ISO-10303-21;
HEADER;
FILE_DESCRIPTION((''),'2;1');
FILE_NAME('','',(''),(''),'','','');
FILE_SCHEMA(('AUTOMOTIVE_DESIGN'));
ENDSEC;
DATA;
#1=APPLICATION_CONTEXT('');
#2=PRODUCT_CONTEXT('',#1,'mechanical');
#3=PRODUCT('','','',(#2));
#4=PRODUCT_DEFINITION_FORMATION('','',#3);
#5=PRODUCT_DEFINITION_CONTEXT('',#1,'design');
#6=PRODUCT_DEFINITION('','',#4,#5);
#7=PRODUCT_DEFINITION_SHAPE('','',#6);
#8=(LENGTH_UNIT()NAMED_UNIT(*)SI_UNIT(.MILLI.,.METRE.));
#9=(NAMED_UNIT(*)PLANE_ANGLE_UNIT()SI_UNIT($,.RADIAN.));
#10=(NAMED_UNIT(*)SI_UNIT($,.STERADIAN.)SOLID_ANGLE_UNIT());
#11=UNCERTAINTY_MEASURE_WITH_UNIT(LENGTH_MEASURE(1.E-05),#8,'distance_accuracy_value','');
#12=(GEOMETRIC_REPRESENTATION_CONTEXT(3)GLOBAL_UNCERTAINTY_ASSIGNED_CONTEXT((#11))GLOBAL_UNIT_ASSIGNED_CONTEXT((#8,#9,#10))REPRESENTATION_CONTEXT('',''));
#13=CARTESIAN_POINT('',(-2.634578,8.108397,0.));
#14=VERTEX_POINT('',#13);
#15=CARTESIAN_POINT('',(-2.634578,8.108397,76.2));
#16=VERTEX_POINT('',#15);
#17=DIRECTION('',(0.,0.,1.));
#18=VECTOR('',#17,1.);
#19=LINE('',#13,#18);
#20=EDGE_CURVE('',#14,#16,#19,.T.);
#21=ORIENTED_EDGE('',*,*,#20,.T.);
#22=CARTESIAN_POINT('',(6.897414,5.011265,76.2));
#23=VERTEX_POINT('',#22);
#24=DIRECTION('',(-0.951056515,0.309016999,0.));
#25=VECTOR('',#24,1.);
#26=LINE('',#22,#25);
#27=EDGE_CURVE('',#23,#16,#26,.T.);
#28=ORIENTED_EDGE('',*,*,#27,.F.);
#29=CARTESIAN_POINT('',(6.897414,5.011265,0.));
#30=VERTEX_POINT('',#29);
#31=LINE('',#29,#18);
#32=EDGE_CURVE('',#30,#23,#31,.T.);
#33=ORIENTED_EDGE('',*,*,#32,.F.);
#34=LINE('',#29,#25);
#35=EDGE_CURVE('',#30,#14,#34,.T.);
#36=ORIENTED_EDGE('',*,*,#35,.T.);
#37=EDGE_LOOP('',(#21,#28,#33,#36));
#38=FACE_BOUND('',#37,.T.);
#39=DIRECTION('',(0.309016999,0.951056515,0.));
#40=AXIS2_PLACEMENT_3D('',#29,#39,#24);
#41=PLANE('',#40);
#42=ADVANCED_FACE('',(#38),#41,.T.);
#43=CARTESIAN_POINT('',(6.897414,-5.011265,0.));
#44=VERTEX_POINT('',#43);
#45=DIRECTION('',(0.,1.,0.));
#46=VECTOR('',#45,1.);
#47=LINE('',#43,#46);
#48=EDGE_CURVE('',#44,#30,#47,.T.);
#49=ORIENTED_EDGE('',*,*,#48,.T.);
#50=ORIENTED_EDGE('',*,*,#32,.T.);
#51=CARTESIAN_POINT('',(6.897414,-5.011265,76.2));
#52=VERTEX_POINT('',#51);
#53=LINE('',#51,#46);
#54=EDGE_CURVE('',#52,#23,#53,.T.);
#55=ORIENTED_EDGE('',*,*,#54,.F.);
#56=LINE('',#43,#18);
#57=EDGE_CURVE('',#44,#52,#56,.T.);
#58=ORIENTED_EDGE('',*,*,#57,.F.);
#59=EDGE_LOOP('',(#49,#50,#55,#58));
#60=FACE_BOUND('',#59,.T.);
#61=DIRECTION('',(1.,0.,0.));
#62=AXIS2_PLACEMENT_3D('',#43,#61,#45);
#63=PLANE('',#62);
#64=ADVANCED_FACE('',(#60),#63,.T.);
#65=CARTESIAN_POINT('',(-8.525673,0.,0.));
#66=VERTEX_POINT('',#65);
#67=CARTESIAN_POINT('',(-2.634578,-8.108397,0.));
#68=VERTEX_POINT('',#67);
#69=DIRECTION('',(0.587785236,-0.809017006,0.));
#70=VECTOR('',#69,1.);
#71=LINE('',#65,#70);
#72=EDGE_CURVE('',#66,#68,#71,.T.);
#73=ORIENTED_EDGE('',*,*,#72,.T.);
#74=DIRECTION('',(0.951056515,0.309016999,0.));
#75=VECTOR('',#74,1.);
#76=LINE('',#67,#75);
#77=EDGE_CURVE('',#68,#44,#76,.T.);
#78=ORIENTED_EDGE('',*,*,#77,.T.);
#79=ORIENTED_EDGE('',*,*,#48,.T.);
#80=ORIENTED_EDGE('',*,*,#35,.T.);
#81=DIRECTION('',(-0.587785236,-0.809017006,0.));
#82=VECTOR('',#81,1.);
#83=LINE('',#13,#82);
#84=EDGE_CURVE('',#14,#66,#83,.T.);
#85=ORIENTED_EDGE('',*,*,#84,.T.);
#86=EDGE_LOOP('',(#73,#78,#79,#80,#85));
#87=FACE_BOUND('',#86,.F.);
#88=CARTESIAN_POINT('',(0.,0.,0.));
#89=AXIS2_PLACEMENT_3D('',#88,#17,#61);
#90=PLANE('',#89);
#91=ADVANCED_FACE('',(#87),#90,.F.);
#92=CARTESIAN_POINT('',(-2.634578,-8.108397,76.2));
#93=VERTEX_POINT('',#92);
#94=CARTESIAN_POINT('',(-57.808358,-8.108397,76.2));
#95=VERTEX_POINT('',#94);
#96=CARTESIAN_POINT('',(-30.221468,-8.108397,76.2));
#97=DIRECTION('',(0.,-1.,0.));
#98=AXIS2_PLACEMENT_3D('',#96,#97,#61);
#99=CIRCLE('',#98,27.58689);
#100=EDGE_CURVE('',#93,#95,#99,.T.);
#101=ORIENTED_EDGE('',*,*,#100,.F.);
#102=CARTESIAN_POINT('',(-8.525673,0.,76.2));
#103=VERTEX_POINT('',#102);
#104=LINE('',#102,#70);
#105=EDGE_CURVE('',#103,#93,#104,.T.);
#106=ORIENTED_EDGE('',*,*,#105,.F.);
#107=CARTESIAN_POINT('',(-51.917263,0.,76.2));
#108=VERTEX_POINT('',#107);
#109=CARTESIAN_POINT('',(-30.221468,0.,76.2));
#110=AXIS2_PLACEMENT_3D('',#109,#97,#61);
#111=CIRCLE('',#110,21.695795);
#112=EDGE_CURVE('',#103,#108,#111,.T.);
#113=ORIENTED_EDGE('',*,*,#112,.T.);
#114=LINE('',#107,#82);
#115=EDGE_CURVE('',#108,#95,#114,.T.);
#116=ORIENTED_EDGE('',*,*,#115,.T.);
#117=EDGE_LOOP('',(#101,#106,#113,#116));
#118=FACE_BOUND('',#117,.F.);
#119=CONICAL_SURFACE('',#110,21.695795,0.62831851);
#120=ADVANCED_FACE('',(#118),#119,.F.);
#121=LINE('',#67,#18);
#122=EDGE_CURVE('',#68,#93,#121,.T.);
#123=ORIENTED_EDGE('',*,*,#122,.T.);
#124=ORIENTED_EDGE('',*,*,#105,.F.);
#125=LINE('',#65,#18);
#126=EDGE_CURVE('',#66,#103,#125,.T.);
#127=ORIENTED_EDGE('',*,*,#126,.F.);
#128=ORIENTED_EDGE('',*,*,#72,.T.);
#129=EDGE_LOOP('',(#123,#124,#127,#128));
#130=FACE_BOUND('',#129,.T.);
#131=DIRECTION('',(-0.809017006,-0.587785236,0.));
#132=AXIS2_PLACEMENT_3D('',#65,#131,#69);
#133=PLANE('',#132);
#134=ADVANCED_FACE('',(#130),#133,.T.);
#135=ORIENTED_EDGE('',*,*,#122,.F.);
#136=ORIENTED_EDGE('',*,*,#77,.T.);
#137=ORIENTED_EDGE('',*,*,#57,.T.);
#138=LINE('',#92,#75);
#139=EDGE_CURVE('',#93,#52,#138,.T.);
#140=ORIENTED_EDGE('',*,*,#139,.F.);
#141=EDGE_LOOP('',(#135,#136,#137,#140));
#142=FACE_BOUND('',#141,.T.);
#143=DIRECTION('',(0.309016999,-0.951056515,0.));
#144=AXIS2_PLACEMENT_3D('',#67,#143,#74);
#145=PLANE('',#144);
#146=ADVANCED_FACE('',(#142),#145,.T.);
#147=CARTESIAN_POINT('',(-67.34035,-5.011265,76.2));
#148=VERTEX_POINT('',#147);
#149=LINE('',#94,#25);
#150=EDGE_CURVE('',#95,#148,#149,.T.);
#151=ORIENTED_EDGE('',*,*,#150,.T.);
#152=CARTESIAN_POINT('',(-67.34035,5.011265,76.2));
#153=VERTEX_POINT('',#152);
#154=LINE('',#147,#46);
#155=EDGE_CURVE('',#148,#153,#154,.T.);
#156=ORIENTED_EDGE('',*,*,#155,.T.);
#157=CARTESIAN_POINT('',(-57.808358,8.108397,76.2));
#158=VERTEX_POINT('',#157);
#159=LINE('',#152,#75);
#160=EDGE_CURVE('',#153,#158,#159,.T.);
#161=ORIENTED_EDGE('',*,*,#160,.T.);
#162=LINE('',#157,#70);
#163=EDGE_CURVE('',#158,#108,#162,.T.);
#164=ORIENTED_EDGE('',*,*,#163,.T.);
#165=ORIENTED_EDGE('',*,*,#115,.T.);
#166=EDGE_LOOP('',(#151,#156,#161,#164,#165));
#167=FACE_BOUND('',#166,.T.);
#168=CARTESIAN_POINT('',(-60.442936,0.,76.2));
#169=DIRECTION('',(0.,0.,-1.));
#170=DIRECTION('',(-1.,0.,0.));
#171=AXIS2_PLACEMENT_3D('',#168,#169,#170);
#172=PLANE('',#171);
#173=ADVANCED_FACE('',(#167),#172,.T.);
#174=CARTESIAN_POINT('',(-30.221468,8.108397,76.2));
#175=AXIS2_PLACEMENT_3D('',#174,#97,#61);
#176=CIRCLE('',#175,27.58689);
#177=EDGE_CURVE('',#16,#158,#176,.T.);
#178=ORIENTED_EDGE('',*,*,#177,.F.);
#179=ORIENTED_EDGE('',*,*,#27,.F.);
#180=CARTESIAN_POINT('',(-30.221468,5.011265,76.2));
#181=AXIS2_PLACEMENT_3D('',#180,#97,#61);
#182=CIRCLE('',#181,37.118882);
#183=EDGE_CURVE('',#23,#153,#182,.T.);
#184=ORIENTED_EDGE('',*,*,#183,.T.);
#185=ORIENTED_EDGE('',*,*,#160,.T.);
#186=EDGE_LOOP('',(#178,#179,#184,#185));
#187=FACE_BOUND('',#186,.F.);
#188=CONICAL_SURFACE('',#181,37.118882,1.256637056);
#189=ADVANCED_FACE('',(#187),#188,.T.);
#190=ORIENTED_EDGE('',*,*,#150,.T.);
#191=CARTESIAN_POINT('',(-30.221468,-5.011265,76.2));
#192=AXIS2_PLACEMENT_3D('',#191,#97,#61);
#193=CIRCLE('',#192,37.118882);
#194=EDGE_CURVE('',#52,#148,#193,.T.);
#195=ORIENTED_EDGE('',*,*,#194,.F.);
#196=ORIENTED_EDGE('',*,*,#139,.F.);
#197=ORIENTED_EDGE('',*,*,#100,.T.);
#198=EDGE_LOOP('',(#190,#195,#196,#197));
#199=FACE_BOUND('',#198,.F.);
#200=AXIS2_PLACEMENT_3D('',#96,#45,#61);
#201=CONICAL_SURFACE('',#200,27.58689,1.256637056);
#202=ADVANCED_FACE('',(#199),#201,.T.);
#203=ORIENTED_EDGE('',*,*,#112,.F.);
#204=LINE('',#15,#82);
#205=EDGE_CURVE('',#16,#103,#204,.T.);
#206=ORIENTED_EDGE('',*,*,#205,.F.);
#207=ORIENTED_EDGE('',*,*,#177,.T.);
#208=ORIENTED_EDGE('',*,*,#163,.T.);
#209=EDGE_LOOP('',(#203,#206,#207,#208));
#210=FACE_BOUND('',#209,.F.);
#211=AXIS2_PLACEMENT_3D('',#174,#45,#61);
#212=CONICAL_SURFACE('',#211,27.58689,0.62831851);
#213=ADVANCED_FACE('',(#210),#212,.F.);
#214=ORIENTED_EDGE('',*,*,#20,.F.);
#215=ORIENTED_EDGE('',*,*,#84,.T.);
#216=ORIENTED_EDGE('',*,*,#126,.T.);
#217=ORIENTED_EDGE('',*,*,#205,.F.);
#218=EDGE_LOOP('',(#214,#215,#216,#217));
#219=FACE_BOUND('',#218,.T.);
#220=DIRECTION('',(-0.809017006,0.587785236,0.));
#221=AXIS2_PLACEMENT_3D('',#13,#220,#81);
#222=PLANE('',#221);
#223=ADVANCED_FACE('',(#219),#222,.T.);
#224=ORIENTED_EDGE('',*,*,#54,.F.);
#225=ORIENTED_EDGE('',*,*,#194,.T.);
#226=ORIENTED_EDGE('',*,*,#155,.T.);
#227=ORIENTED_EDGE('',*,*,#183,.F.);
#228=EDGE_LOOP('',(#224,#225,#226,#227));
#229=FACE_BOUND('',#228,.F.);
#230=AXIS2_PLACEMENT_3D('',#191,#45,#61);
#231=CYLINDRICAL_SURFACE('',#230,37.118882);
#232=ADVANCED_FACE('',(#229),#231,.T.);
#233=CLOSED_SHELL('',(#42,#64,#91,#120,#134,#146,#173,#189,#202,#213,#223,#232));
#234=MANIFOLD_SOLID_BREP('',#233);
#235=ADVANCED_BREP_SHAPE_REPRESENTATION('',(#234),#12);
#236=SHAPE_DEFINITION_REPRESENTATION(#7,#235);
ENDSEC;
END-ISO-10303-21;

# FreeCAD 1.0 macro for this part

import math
import FreeCAD as App
import Part
import Sketcher

V = App.Vector
Q = App.Units.Quantity

doc = App.newDocument("Part")
body = doc.addObject("PartDesign::Body", "Body")

# Sketch on XY plane
sketch1 = body.newObject("Sketcher::SketchObject", "Sketch")
sketch1.AttachmentSupport = (doc.getObject("XY_Plane"), [""])
sketch1.MapMode = "FlatFace"
sketch1.addGeometry([
    Part.LineSegment(V(7, -5, 0), V(7, 5, 0)),  # 0
    Part.LineSegment(V(7, 5, 0), V(-3, 8, 0)),  # 1
    Part.LineSegment(V(-3, 8, 0), V(-9, 0, 0)),  # 2
    Part.LineSegment(V(-9, 0, 0), V(-3, -8, 0)),  # 3
    Part.LineSegment(V(-3, -8, 0), V(7, -5, 0)),  # 4
], False)
sketch1.addConstraint([
    Sketcher.Constraint("Coincident", 0, 2, 1, 1),
    Sketcher.Constraint("Coincident", 1, 2, 2, 1),
    Sketcher.Constraint("Coincident", 2, 2, 3, 1),
    Sketcher.Constraint("Coincident", 3, 2, 4, 1),
    Sketcher.Constraint("Coincident", 4, 2, 0, 1),
    Sketcher.Constraint("Vertical", 0),
    Sketcher.Constraint("Symmetric", 1, 2, 3, 2, -1),
    Sketcher.Constraint("PointOnObject", 2, 2, -1),
    Sketcher.Constraint("Equal", 1, 2),
    Sketcher.Constraint("Equal", 3, 4),
    Sketcher.Constraint("Angle", 1, Q("162 deg")),
    Sketcher.Constraint("Angle", 2, Q("-125.999999 deg")),
    Sketcher.Constraint("DistanceY", 0, 1, 0, 2, 10.02253),
    Sketcher.Constraint("DistanceX", -1, 1, 0, 2, 6.897414),
])

# Sketch on XZ plane
sketch2 = body.newObject("Sketcher::SketchObject", "Sketch001")
sketch2.AttachmentSupport = (doc.getObject("XZ_Plane"), [""])
sketch2.MapMode = "FlatFace"
sketch2.addGeometry([
    Part.LineSegment(V(0, 0, 0), V(0, 76, 0)),
    Part.ArcOfCircle(Part.Circle(V(-30, 76, 0), V(0, 0, 1), 30), math.radians(0), math.radians(180)),
], False)
sketch2.addConstraint([
    Sketcher.Constraint("Tangent", 0, 2, 1, 1),
    Sketcher.Constraint("Vertical", 0),
    Sketcher.Constraint("Coincident", 0, 1, -1, 1),
    Sketcher.Constraint("Horizontal", 0, 2, 1, 2),
    Sketcher.Constraint("DistanceY", 0, 1, 0, 2, Q("3 in")),
    Sketcher.Constraint("Radius", 1, 30.221468),
])
doc.recompute()

additivepipe = body.newObject("PartDesign::AdditivePipe", "AdditivePipe")
additivepipe.Profile = sketch1
additivepipe.Spine = (sketch2, ["Edge1", "Edge2"])

doc.recompute()
